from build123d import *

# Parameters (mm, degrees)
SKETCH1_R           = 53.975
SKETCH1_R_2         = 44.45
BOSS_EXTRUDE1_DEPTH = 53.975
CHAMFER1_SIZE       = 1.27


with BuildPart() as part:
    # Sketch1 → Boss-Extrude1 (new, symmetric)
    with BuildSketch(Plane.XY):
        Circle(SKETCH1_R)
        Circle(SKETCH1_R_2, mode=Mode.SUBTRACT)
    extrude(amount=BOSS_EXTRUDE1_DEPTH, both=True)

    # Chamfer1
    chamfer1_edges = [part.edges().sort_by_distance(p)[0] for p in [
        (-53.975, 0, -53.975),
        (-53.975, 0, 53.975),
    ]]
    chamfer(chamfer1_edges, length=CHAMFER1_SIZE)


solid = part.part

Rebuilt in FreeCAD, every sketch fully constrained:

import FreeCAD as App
import Part
import Sketcher
Q = App.Units.Quantity


def edges_at(feature, points):
    """Names of the edges that pass closest to the given points."""
    edges = feature.Shape.Edges
    near = lambda p: min(range(len(edges)), key=lambda i: edges[i].distToShape(Part.Vertex(*p))[0])
    return sorted({f"Edge{near(p) + 1}" for p in points})

doc = App.newDocument("Part")
params = doc.addObject("Spreadsheet::Sheet", "Params")
for row, (alias, value) in enumerate([
    ("sketch1_diameter", "3.5 in"),
    ("sketch1_diameter2", "4.25 in"),
    ("pad1_length", "4.25 in"),
    ("chamfer_size", "0.05 in"),
], start=1):
    params.set(f"A{row}", alias)
    params.set(f"B{row}", "=" + value)
    params.setAlias(f"B{row}", alias)

body = doc.addObject("PartDesign::Body", "Body")

sketch1 = body.newObject("Sketcher::SketchObject", "Sketch")
sketch1.AttachmentSupport = (doc.getObject("XY_Plane"), [""])
sketch1.MapMode = "FlatFace"
sketch1.addGeometry(Part.Circle(App.Vector(0, 0, 0), App.Vector(0, 0, 1), 54), False)
sketch1.addGeometry(Part.Circle(App.Vector(0, 0, 0), App.Vector(0, 0, 1), 44), False)
sketch1.addConstraint(Sketcher.Constraint("Coincident", 0, 3, -1, 1))
sketch1.addConstraint(Sketcher.Constraint("Coincident", 1, 3, -1, 1))
sketch1.addConstraint(Sketcher.Constraint("Diameter", 1, Q("3.5 in")))
sketch1.addConstraint(Sketcher.Constraint("Diameter", 0, Q("4.25 in")))
sketch1.setExpression("Constraints[2]", "Params.sketch1_diameter")
sketch1.setExpression("Constraints[3]", "Params.sketch1_diameter2")
pad1 = body.newObject("PartDesign::Pad", "Pad")
pad1.Profile = sketch1
pad1.setExpression("Length", "Params.pad1_length")
pad1.Midplane = True
doc.recompute()

chamfer = body.newObject("PartDesign::Chamfer", "Chamfer")
chamfer.Base = (pad1, edges_at(pad1, [(-53.975, 0, -53.975), (-53.975, 0, 53.975)]))
chamfer.setExpression("Size", "Params.chamfer_size")

doc.recompute()
